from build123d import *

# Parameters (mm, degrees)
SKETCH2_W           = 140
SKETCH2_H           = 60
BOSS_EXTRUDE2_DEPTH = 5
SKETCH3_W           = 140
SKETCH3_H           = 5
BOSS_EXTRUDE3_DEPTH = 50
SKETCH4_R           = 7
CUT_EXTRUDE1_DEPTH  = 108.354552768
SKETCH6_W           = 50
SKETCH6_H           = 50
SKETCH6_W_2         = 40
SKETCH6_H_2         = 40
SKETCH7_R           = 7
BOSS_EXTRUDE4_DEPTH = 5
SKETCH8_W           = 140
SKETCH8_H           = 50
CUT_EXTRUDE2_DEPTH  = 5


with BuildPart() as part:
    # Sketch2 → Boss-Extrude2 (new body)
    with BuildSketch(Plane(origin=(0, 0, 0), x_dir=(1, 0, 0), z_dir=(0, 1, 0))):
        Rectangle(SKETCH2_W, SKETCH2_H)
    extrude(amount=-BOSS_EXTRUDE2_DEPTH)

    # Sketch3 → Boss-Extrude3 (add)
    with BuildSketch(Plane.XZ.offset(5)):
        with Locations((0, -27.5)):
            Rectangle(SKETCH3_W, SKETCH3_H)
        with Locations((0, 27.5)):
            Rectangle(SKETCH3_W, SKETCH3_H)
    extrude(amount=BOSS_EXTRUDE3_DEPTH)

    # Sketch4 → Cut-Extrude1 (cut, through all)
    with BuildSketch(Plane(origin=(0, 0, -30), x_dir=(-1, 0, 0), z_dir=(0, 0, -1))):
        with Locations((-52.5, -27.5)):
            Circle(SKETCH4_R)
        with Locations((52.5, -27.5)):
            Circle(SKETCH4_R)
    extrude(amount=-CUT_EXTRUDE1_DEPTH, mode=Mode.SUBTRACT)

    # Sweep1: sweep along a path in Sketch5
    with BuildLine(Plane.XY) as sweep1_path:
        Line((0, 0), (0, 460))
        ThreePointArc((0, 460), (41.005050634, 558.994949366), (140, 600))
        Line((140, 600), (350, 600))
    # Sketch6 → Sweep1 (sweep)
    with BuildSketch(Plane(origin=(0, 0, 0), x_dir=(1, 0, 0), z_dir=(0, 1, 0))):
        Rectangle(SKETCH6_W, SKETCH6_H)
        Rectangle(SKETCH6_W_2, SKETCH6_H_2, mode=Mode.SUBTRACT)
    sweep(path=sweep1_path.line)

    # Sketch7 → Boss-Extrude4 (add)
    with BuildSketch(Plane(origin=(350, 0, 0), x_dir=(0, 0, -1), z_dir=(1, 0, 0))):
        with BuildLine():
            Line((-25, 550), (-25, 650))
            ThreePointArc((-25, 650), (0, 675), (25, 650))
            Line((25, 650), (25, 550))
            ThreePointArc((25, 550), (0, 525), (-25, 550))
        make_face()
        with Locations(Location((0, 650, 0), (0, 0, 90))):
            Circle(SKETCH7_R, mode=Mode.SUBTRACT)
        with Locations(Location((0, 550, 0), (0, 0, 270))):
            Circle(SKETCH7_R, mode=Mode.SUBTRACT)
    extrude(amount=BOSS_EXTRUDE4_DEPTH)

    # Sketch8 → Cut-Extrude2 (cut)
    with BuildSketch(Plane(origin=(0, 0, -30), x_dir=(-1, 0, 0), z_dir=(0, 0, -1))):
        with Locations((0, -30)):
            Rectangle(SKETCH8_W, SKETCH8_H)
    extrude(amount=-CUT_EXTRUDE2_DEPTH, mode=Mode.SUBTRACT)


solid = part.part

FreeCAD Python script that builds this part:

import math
import FreeCAD as App
import Part
import Sketcher
from FreeCAD import Vector

doc = App.newDocument("Part")
body = doc.addObject("PartDesign::Body", "Body")

sketch1 = doc.addObject("Sketcher::SketchObject", "Sketch")
body.addObject(sketch1)
sketch1.AttachmentSupport = (doc.XZ_Plane, [""])
sketch1.MapMode = "FlatFace"
sketch1.addGeometry([
    Part.LineSegment(Vector(-70, -30, 0), Vector(-70, 30, 0)),
    Part.LineSegment(Vector(-70, 30, 0), Vector(70, 30, 0)),
    Part.LineSegment(Vector(70, 30, 0), Vector(70, -30, 0)),
    Part.LineSegment(Vector(70, -30, 0), Vector(-70, -30, 0)),
], False)
sketch1.addConstraint([
    Sketcher.Constraint("Coincident", 0, 2, 1, 1),
    Sketcher.Constraint("Coincident", 1, 2, 2, 1),
    Sketcher.Constraint("Coincident", 2, 2, 3, 1),
    Sketcher.Constraint("Coincident", 3, 2, 0, 1),
    Sketcher.Constraint("Vertical", 0),
    Sketcher.Constraint("Horizontal", 1),
    Sketcher.Constraint("Vertical", 2),
    Sketcher.Constraint("Horizontal", 3),
    Sketcher.Constraint("Symmetric", 0, 2, 2, 2, -1, 1),
    Sketcher.Constraint("DistanceX", 1, 1, 1, 2, 140.0),
    Sketcher.Constraint("DistanceY", 0, 1, 0, 2, 60.0),
])
pad1 = doc.addObject("PartDesign::Pad", "Pad")
body.addObject(pad1)
pad1.Profile = sketch1
pad1.Length = 5

sketch2 = doc.addObject("Sketcher::SketchObject", "Sketch001")
body.addObject(sketch2)
sketch2.AttachmentSupport = (doc.XZ_Plane, [""])
sketch2.MapMode = "FlatFace"
sketch2.AttachmentOffset = App.Placement(Vector(0, 0, 5), App.Rotation())
sketch2.addGeometry([
    Part.LineSegment(Vector(-70, -25, 0), Vector(-70, -30, 0)),
    Part.LineSegment(Vector(-70, -30, 0), Vector(70, -30, 0)),
    Part.LineSegment(Vector(70, -30, 0), Vector(70, -25, 0)),
    Part.LineSegment(Vector(70, -25, 0), Vector(-70, -25, 0)),
    Part.LineSegment(Vector(-70, 30, 0), Vector(-70, 25, 0)),
    Part.LineSegment(Vector(-70, 25, 0), Vector(70, 25, 0)),
    Part.LineSegment(Vector(70, 25, 0), Vector(70, 30, 0)),
    Part.LineSegment(Vector(70, 30, 0), Vector(-70, 30, 0)),
], False)
sketch2.addConstraint([
    Sketcher.Constraint("Coincident", 0, 2, 1, 1),
    Sketcher.Constraint("Coincident", 1, 2, 2, 1),
    Sketcher.Constraint("Coincident", 2, 2, 3, 1),
    Sketcher.Constraint("Coincident", 3, 2, 0, 1),
    Sketcher.Constraint("Coincident", 4, 2, 5, 1),
    Sketcher.Constraint("Coincident", 5, 2, 6, 1),
    Sketcher.Constraint("Coincident", 6, 2, 7, 1),
    Sketcher.Constraint("Coincident", 7, 2, 4, 1),
    Sketcher.Constraint("Vertical", 0),
    Sketcher.Constraint("Horizontal", 1),
    Sketcher.Constraint("Vertical", 2),
    Sketcher.Constraint("Horizontal", 3),
    Sketcher.Constraint("Vertical", 4),
    Sketcher.Constraint("Horizontal", 5),
    Sketcher.Constraint("Vertical", 6),
    Sketcher.Constraint("Horizontal", 7),
    Sketcher.Constraint("Symmetric", 2, 2, 4, 2, -1, 1),
    Sketcher.Constraint("Symmetric", 0, 2, 6, 2, -1, 1),
    Sketcher.Constraint("Vertical", 3, 2, 4, 2),
    Sketcher.Constraint("DistanceX", 1, 1, 1, 2, 140.0),
    Sketcher.Constraint("DistanceY", 0, 2, 0, 1, 5.0),
    Sketcher.Constraint("DistanceY", 0, 2, -1, 1, 30.0),
])
pad2 = doc.addObject("PartDesign::Pad", "Pad001")
body.addObject(pad2)
pad2.Profile = sketch2
pad2.Length = 50

sketch3 = doc.addObject("Sketcher::SketchObject", "Sketch002")
body.addObject(sketch3)
sketch3.AttachmentSupport = (doc.XY_Plane, [""])
sketch3.MapMode = "FlatFace"
sketch3.AttachmentOffset = App.Placement(Vector(0, 0, -30), App.Rotation())
sketch3.addGeometry([
    Part.Circle(Vector(52, -28, 0), Vector(0, 0, 1), 7),
    Part.Circle(Vector(-52, -28, 0), Vector(0, 0, 1), 7),
], False)
sketch3.addConstraint([
    Sketcher.Constraint("Equal", 0, 1),
    Sketcher.Constraint("Symmetric", 0, 3, 1, 3, -2),
    Sketcher.Constraint("Diameter", 0, 14.0),
    Sketcher.Constraint("DistanceX", 1, 3, 0, 3, 105.0),
    Sketcher.Constraint("DistanceY", 0, 3, -1, 1, 27.5),
])
pocket1 = doc.addObject("PartDesign::Pocket", "Pocket")
body.addObject(pocket1)
pocket1.Profile = sketch3
pocket1.Type = "ThroughAll"
pocket1.Reversed = True

sketch4 = doc.addObject("Sketcher::SketchObject", "Sketch003")
body.addObject(sketch4)
sketch4.AttachmentSupport = (doc.XZ_Plane, [""])
sketch4.MapMode = "FlatFace"
sketch4.addGeometry([
    Part.LineSegment(Vector(-25, -25, 0), Vector(-25, 25, 0)),
    Part.LineSegment(Vector(-25, 25, 0), Vector(25, 25, 0)),
    Part.LineSegment(Vector(25, 25, 0), Vector(25, -25, 0)),
    Part.LineSegment(Vector(25, -25, 0), Vector(-25, -25, 0)),
    Part.LineSegment(Vector(20, 20, 0), Vector(-20, 20, 0)),
    Part.LineSegment(Vector(-20, 20, 0), Vector(-20, -20, 0)),
    Part.LineSegment(Vector(-20, -20, 0), Vector(20, -20, 0)),
    Part.LineSegment(Vector(20, -20, 0), Vector(20, 20, 0)),
], False)
sketch4.addConstraint([
    Sketcher.Constraint("Coincident", 0, 2, 1, 1),
    Sketcher.Constraint("Coincident", 1, 2, 2, 1),
    Sketcher.Constraint("Coincident", 2, 2, 3, 1),
    Sketcher.Constraint("Coincident", 3, 2, 0, 1),
    Sketcher.Constraint("Coincident", 4, 2, 5, 1),
    Sketcher.Constraint("Coincident", 5, 2, 6, 1),
    Sketcher.Constraint("Coincident", 6, 2, 7, 1),
    Sketcher.Constraint("Coincident", 7, 2, 4, 1),
    Sketcher.Constraint("Vertical", 0),
    Sketcher.Constraint("Horizontal", 1),
    Sketcher.Constraint("Vertical", 2),
    Sketcher.Constraint("Horizontal", 3),
    Sketcher.Constraint("Horizontal", 4),
    Sketcher.Constraint("Vertical", 5),
    Sketcher.Constraint("Horizontal", 6),
    Sketcher.Constraint("Vertical", 7),
    Sketcher.Constraint("Symmetric", 0, 2, 2, 2, -1, 1),
    Sketcher.Constraint("Symmetric", 4, 2, 6, 2, -1, 1),
    Sketcher.Constraint("Equal", 3, 0),
    Sketcher.Constraint("Equal", 6, 5),
    Sketcher.Constraint("DistanceX", 1, 1, 1, 2, 50.0),
    Sketcher.Constraint("DistanceX", 4, 2, 4, 1, 40.0),
])

sketch5 = doc.addObject("Sketcher::SketchObject", "Sketch004")
body.addObject(sketch5)
sketch5.AttachmentSupport = (doc.XY_Plane, [""])
sketch5.MapMode = "FlatFace"
sketch5.addGeometry([
    Part.LineSegment(Vector(0, 0, 0), Vector(0, 460, 0)),
    Part.ArcOfCircle(Part.Circle(Vector(140, 460, 0), Vector(0, 0, 1), 140), math.radians(90), math.radians(180)),
    Part.LineSegment(Vector(140, 600, 0), Vector(350, 600, 0)),
], False)
sketch5.addConstraint([
    Sketcher.Constraint("Tangent", 0, 2, 1, 2),
    Sketcher.Constraint("Tangent", 1, 1, 2, 1),
    Sketcher.Constraint("Vertical", 0),
    Sketcher.Constraint("Horizontal", 2),
    Sketcher.Constraint("Coincident", 0, 1, -1, 1),
    Sketcher.Constraint("Radius", 1, 140.0),
    Sketcher.Constraint("DistanceX", 2, 1, 2, 2, 210.0),
    Sketcher.Constraint("DistanceY", 0, 1, 0, 2, 460.0),
])
doc.recompute()

additivepipe = doc.addObject("PartDesign::AdditivePipe", "AdditivePipe")
body.addObject(additivepipe)
additivepipe.Profile = sketch4
additivepipe.Spine = (sketch5, ["Edge1", "Edge2", "Edge3"])

sketch6 = doc.addObject("Sketcher::SketchObject", "Sketch005")
body.addObject(sketch6)
sketch6.AttachmentSupport = (doc.YZ_Plane, [""])
sketch6.MapMode = "FlatFace"
sketch6.AttachmentOffset = App.Placement(Vector(0, 0, 350), App.Rotation())
sketch6.addGeometry([
    Part.LineSegment(Vector(650, 25, 0), Vector(550, 25, 0)),
    Part.ArcOfCircle(Part.Circle(Vector(550, 0, 0), Vector(0, 0, 1), 25), math.radians(90), math.radians(270)),
    Part.LineSegment(Vector(550, -25, 0), Vector(650, -25, 0)),
    Part.ArcOfCircle(Part.Circle(Vector(650, 0, 0), Vector(0, 0, 1), 25), math.radians(-90), math.radians(90)),
    Part.Circle(Vector(550, 0, 0), Vector(0, 0, 1), 7),
    Part.Circle(Vector(650, 0, 0), Vector(0, 0, 1), 7),
], False)
sketch6.addConstraint([
    Sketcher.Constraint("Tangent", 0, 2, 1, 1),
    Sketcher.Constraint("Tangent", 1, 2, 2, 1),
    Sketcher.Constraint("Tangent", 2, 2, 3, 1),
    Sketcher.Constraint("Tangent", 3, 2, 0, 1),
    Sketcher.Constraint("Horizontal", 0),
    Sketcher.Constraint("Horizontal", 2),
    Sketcher.Constraint("Coincident", 4, 3, 1, 3),
    Sketcher.Constraint("Coincident", 5, 3, 3, 3),
    Sketcher.Constraint("Equal", 4, 5),
    Sketcher.Constraint("PointOnObject", 1, 3, -1),
    Sketcher.Constraint("Diameter", 4, 14.0),
    Sketcher.Constraint("Radius", 1, 25.0),
    Sketcher.Constraint("DistanceX", 0, 2, 0, 1, 100.0),
    Sketcher.Constraint("DistanceX", -1, 1, 1, 3, 550.0),
])
pad3 = doc.addObject("PartDesign::Pad", "Pad002")
body.addObject(pad3)
pad3.Profile = sketch6
pad3.Length = 5

sketch7 = doc.addObject("Sketcher::SketchObject", "Sketch006")
body.addObject(sketch7)
sketch7.AttachmentSupport = (doc.XY_Plane, [""])
sketch7.MapMode = "FlatFace"
sketch7.AttachmentOffset = App.Placement(Vector(0, 0, -30), App.Rotation())
sketch7.addGeometry([
    Part.LineSegment(Vector(70, -5, 0), Vector(70, -55, 0)),
    Part.LineSegment(Vector(70, -55, 0), Vector(-70, -55, 0)),
    Part.LineSegment(Vector(-70, -55, 0), Vector(-70, -5, 0)),
    Part.LineSegment(Vector(-70, -5, 0), Vector(70, -5, 0)),
], False)
sketch7.addConstraint([
    Sketcher.Constraint("Coincident", 0, 2, 1, 1),
    Sketcher.Constraint("Coincident", 1, 2, 2, 1),
    Sketcher.Constraint("Coincident", 2, 2, 3, 1),
    Sketcher.Constraint("Coincident", 3, 2, 0, 1),
    Sketcher.Constraint("Vertical", 0),
    Sketcher.Constraint("Horizontal", 1),
    Sketcher.Constraint("Vertical", 2),
    Sketcher.Constraint("Horizontal", 3),
    Sketcher.Constraint("DistanceX", 1, 2, 1, 1, 140.0),
    Sketcher.Constraint("DistanceY", 0, 2, 0, 1, 50.0),
    Sketcher.Constraint("DistanceX", -1, 1, 0, 2, 70.0),
    Sketcher.Constraint("DistanceY", 0, 2, -1, 1, 55.0),
])
pocket2 = doc.addObject("PartDesign::Pocket", "Pocket001")
body.addObject(pocket2)
pocket2.Profile = sketch7
pocket2.Length = 5
pocket2.Reversed = True

doc.recompute()
